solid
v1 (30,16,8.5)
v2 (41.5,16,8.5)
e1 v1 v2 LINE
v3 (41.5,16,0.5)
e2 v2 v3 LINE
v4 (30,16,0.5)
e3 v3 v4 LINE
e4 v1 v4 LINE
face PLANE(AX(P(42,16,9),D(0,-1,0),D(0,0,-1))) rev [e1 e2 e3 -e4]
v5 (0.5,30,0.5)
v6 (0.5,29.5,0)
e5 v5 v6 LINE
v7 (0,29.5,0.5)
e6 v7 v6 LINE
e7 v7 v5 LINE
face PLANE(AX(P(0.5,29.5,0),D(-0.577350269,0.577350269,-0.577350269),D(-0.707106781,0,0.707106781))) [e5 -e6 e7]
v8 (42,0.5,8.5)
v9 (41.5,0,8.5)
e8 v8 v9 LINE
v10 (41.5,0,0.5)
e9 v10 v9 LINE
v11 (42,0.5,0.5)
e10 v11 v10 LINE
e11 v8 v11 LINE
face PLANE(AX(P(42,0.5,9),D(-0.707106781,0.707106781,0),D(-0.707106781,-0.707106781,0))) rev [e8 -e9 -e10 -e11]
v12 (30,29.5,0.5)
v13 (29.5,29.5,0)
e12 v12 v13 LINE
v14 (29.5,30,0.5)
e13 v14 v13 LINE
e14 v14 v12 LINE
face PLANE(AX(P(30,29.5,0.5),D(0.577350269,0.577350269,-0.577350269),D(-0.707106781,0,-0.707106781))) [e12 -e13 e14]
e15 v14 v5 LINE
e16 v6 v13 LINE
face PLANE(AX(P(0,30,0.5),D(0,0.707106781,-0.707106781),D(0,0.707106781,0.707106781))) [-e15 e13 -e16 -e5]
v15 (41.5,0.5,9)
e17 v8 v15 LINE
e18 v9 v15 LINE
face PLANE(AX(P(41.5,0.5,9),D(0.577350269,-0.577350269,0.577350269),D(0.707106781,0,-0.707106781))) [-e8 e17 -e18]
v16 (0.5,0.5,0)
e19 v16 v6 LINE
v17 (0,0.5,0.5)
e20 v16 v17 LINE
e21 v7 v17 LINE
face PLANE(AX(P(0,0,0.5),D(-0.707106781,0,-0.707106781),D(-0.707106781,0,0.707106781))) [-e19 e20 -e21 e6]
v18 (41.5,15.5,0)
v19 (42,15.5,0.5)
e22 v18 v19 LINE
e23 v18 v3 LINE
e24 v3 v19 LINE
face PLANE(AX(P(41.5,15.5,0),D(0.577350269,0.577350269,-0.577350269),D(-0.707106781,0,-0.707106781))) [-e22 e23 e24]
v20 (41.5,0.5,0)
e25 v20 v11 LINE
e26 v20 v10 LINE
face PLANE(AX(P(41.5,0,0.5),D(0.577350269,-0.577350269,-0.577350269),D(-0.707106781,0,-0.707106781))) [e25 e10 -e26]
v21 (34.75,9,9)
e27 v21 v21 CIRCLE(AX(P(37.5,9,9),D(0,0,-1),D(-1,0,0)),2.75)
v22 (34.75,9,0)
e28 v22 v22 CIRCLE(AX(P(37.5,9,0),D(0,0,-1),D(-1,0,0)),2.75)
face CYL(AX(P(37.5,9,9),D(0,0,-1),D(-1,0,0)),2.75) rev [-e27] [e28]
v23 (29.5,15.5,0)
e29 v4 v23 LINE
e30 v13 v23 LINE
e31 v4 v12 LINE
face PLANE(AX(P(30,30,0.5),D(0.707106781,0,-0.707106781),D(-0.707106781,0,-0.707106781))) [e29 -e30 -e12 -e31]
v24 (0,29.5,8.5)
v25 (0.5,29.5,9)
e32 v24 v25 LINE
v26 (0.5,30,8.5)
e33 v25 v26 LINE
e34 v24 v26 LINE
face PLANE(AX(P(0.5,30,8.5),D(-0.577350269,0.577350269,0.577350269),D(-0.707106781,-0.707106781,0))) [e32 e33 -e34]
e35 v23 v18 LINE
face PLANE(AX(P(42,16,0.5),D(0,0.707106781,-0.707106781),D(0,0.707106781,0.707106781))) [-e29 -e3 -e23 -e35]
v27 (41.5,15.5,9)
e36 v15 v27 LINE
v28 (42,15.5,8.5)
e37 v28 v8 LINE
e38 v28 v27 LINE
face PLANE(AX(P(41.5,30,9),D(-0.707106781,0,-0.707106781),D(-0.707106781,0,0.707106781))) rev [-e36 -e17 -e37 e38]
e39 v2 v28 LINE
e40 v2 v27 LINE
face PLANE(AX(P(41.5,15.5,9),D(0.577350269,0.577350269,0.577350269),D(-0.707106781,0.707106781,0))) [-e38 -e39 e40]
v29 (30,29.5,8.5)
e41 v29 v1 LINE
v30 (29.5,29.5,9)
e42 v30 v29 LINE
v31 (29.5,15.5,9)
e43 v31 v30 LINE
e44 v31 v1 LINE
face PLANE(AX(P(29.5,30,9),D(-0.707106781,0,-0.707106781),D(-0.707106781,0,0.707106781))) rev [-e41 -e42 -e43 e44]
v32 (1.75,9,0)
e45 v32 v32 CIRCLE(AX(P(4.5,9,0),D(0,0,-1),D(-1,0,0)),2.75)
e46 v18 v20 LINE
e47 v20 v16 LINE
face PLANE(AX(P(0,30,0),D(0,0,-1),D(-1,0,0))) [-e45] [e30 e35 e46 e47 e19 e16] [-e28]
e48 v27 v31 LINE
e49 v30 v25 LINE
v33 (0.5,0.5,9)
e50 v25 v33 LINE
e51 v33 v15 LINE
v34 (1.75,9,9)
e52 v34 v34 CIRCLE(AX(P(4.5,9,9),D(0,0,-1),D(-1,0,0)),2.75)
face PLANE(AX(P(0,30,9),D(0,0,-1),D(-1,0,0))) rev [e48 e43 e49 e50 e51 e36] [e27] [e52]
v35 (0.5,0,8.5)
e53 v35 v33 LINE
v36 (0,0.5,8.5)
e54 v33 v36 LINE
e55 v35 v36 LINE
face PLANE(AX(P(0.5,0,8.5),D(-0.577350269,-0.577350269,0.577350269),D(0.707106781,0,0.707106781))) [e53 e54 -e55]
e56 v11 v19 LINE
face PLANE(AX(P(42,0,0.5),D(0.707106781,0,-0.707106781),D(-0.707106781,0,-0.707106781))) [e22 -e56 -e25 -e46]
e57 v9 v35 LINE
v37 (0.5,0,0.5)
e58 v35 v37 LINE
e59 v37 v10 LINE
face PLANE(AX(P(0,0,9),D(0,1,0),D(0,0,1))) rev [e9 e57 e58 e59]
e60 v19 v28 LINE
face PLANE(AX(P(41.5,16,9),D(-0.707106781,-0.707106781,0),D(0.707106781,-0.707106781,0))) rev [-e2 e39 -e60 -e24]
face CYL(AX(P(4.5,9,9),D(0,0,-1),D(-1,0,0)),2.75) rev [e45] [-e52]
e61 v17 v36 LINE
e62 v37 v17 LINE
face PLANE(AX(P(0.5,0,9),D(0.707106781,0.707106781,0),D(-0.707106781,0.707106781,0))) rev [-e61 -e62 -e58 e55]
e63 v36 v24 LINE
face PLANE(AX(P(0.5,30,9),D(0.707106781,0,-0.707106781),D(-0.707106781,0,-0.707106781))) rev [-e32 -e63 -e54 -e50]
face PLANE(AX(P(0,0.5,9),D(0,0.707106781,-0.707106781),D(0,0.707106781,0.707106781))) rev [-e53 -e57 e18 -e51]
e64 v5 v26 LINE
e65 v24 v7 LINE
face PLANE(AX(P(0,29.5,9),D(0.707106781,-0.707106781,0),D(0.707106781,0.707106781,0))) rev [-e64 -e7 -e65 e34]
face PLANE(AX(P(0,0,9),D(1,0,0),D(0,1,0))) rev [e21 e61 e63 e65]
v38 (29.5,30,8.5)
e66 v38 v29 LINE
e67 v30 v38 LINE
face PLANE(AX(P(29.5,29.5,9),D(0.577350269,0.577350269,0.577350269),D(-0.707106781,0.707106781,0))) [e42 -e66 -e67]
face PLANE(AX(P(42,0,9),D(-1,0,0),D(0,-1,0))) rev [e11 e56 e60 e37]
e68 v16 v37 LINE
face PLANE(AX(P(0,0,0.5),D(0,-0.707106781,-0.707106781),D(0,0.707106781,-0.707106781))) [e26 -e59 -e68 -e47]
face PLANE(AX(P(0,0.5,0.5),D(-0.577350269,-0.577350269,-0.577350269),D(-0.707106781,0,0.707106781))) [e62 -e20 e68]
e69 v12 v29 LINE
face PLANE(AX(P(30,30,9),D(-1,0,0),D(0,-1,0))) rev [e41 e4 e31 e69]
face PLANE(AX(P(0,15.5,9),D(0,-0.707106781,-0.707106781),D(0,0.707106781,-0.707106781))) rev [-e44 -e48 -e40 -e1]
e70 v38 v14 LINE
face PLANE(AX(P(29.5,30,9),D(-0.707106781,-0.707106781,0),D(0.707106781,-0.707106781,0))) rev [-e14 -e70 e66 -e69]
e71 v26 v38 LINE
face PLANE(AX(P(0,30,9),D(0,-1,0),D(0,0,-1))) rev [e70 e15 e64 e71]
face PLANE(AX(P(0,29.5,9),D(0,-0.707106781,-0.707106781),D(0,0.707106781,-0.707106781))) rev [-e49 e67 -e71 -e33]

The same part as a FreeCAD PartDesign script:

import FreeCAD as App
import Part
import Sketcher
from FreeCAD import Vector
Q = App.Units.Quantity


def edges_at(feature, points):
    """Names of the edges that pass closest to the given points."""
    edges = feature.Shape.Edges
    near = lambda p: min(range(len(edges)), key=lambda i: edges[i].distToShape(Part.Vertex(*p))[0])
    return sorted({f"Edge{near(p) + 1}" for p in points})


def add_polygon(sketch, points):
    """Adds a closed chain of lines whose ends are joined by coincident constraints."""
    first, n = sketch.GeometryCount, len(points)
    for a, b in zip(points, points[1:] + points[:1]):
        sketch.addGeometry(Part.LineSegment(App.Vector(*a, 0), App.Vector(*b, 0)), False)
    for i in range(n):
        sketch.addConstraint(Sketcher.Constraint("Coincident", first + i, 2, first + (i + 1) % n, 1))

doc = App.newDocument("Part")
params = doc.addObject("Spreadsheet::Sheet", "Params")
for row, (alias, value) in enumerate([
    ("sketch1_width", "42 mm"),
    ("sketch1_height", "30 mm"),
    ("pad1_length", "9 mm"),
    ("sketch2_width", "12 mm"),
    ("sketch2_height", "14 mm"),
    ("chamfer_size", "0.5 mm"),
    ("sketch3_diameter", "5.5 mm"),
], start=1):
    params.set(f"A{row}", alias)
    params.set(f"B{row}", "=" + value)
    params.setAlias(f"B{row}", alias)

body = doc.addObject("PartDesign::Body", "Body")

# Sketch on XY plane
sketch1 = body.newObject("Sketcher::SketchObject", "Sketch")
sketch1.AttachmentSupport = (doc.getObject("XY_Plane"), [""])
sketch1.MapMode = "FlatFace"
add_polygon(sketch1, [(0, 30), (0, 0), (42, 0), (42, 30)])  # lines 0-3
sketch1.addConstraint(Sketcher.Constraint("Vertical", 0))
sketch1.addConstraint(Sketcher.Constraint("Horizontal", 1))
sketch1.addConstraint(Sketcher.Constraint("Vertical", 2))
sketch1.addConstraint(Sketcher.Constraint("Horizontal", 3))
sketch1.addConstraint(Sketcher.Constraint("Coincident", 0, 2, -1, 1))
sketch1.addConstraint(Sketcher.Constraint("DistanceX", 1, 1, 1, 2, Q("42 mm")))
sketch1.addConstraint(Sketcher.Constraint("DistanceY", 0, 2, 0, 1, Q("30 mm")))
sketch1.setExpression("Constraints[9]", "Params.sketch1_width")
sketch1.setExpression("Constraints[10]", "Params.sketch1_height")
pad1 = body.newObject("PartDesign::Pad", "Pad")
pad1.Profile = sketch1
pad1.setExpression("Length", "Params.pad1_length")

# Sketch on XY plane
sketch2 = body.newObject("Sketcher::SketchObject", "Sketch001")
sketch2.AttachmentSupport = (doc.getObject("XY_Plane"), [""])
sketch2.MapMode = "FlatFace"
add_polygon(sketch2, [(42, 30), (42, 16), (30, 16), (30, 30)])  # lines 0-3
sketch2.addConstraint(Sketcher.Constraint("Vertical", 0))
sketch2.addConstraint(Sketcher.Constraint("Horizontal", 1))
sketch2.addConstraint(Sketcher.Constraint("Vertical", 2))
sketch2.addConstraint(Sketcher.Constraint("Horizontal", 3))
sketch2.addConstraint(Sketcher.Constraint("DistanceX", 1, 2, 1, 1, Q("12 mm")))
sketch2.addConstraint(Sketcher.Constraint("DistanceY", 0, 2, 0, 1, Q("14 mm")))
sketch2.addConstraint(Sketcher.Constraint("DistanceX", -1, 1, 0, 2, Q("42 mm")))
sketch2.addConstraint(Sketcher.Constraint("DistanceY", -1, 1, 0, 2, Q("16 mm")))
sketch2.setExpression("Constraints[8]", "Params.sketch2_width")
sketch2.setExpression("Constraints[9]", "Params.sketch2_height")
pocket1 = body.newObject("PartDesign::Pocket", "Pocket")
pocket1.Profile = sketch2
pocket1.Type = "ThroughAll"
pocket1.Reversed = True
doc.recompute()

chamfer = body.newObject("PartDesign::Chamfer", "Chamfer")
chamfer.Base = (pocket1, edges_at(pocket1, [
    (42, 8, 9),
    (15, 30, 0),
    (15, 30, 9),
    (42, 16, 4.5),
    (30, 23, 9),
    (30, 30, 4.5),
    (36, 16, 9),
    (36, 16, 0),
    (30, 23, 0),
    (0, 15, 9),
    (42, 8, 0),
    (21, 0, 0),
    (0, 15, 0),
    (21, 0, 9),
    (0, 30, 4.5),
    (42, 0, 4.5),
    (0, 0, 4.5),
]))
chamfer.setExpression("Size", "Params.chamfer_size")

# Sketch on XY plane
sketch3 = body.newObject("Sketcher::SketchObject", "Sketch002")
sketch3.AttachmentSupport = (doc.getObject("XY_Plane"), [""])
sketch3.MapMode = "FlatFace"
sketch3.addGeometry(Part.Circle(Vector(37.5, 9, 0), Vector(0, 0, 1), 2.8), False)
sketch3.addGeometry(Part.Circle(Vector(4.5, 9, 0), Vector(0, 0, 1), 2.8), False)
sketch3.addConstraint(Sketcher.Constraint("Equal", 0, 1))
sketch3.addConstraint(Sketcher.Constraint("Horizontal", 0, 3, 1, 3))
sketch3.addConstraint(Sketcher.Constraint("Diameter", 0, Q("5.5 mm")))
sketch3.addConstraint(Sketcher.Constraint("DistanceY", -1, 1, 0, 3, Q("9 mm")))
sketch3.addConstraint(Sketcher.Constraint("DistanceX", 1, 3, 0, 3, Q("33 mm")))
sketch3.addConstraint(Sketcher.Constraint("DistanceX", -1, 1, 0, 3, Q("37.5 mm")))
sketch3.setExpression("Constraints[2]", "Params.sketch3_diameter")
pocket2 = body.newObject("PartDesign::Pocket", "Pocket001")
pocket2.Profile = sketch3
pocket2.Type = "ThroughAll"
pocket2.Reversed = True

doc.recompute()
